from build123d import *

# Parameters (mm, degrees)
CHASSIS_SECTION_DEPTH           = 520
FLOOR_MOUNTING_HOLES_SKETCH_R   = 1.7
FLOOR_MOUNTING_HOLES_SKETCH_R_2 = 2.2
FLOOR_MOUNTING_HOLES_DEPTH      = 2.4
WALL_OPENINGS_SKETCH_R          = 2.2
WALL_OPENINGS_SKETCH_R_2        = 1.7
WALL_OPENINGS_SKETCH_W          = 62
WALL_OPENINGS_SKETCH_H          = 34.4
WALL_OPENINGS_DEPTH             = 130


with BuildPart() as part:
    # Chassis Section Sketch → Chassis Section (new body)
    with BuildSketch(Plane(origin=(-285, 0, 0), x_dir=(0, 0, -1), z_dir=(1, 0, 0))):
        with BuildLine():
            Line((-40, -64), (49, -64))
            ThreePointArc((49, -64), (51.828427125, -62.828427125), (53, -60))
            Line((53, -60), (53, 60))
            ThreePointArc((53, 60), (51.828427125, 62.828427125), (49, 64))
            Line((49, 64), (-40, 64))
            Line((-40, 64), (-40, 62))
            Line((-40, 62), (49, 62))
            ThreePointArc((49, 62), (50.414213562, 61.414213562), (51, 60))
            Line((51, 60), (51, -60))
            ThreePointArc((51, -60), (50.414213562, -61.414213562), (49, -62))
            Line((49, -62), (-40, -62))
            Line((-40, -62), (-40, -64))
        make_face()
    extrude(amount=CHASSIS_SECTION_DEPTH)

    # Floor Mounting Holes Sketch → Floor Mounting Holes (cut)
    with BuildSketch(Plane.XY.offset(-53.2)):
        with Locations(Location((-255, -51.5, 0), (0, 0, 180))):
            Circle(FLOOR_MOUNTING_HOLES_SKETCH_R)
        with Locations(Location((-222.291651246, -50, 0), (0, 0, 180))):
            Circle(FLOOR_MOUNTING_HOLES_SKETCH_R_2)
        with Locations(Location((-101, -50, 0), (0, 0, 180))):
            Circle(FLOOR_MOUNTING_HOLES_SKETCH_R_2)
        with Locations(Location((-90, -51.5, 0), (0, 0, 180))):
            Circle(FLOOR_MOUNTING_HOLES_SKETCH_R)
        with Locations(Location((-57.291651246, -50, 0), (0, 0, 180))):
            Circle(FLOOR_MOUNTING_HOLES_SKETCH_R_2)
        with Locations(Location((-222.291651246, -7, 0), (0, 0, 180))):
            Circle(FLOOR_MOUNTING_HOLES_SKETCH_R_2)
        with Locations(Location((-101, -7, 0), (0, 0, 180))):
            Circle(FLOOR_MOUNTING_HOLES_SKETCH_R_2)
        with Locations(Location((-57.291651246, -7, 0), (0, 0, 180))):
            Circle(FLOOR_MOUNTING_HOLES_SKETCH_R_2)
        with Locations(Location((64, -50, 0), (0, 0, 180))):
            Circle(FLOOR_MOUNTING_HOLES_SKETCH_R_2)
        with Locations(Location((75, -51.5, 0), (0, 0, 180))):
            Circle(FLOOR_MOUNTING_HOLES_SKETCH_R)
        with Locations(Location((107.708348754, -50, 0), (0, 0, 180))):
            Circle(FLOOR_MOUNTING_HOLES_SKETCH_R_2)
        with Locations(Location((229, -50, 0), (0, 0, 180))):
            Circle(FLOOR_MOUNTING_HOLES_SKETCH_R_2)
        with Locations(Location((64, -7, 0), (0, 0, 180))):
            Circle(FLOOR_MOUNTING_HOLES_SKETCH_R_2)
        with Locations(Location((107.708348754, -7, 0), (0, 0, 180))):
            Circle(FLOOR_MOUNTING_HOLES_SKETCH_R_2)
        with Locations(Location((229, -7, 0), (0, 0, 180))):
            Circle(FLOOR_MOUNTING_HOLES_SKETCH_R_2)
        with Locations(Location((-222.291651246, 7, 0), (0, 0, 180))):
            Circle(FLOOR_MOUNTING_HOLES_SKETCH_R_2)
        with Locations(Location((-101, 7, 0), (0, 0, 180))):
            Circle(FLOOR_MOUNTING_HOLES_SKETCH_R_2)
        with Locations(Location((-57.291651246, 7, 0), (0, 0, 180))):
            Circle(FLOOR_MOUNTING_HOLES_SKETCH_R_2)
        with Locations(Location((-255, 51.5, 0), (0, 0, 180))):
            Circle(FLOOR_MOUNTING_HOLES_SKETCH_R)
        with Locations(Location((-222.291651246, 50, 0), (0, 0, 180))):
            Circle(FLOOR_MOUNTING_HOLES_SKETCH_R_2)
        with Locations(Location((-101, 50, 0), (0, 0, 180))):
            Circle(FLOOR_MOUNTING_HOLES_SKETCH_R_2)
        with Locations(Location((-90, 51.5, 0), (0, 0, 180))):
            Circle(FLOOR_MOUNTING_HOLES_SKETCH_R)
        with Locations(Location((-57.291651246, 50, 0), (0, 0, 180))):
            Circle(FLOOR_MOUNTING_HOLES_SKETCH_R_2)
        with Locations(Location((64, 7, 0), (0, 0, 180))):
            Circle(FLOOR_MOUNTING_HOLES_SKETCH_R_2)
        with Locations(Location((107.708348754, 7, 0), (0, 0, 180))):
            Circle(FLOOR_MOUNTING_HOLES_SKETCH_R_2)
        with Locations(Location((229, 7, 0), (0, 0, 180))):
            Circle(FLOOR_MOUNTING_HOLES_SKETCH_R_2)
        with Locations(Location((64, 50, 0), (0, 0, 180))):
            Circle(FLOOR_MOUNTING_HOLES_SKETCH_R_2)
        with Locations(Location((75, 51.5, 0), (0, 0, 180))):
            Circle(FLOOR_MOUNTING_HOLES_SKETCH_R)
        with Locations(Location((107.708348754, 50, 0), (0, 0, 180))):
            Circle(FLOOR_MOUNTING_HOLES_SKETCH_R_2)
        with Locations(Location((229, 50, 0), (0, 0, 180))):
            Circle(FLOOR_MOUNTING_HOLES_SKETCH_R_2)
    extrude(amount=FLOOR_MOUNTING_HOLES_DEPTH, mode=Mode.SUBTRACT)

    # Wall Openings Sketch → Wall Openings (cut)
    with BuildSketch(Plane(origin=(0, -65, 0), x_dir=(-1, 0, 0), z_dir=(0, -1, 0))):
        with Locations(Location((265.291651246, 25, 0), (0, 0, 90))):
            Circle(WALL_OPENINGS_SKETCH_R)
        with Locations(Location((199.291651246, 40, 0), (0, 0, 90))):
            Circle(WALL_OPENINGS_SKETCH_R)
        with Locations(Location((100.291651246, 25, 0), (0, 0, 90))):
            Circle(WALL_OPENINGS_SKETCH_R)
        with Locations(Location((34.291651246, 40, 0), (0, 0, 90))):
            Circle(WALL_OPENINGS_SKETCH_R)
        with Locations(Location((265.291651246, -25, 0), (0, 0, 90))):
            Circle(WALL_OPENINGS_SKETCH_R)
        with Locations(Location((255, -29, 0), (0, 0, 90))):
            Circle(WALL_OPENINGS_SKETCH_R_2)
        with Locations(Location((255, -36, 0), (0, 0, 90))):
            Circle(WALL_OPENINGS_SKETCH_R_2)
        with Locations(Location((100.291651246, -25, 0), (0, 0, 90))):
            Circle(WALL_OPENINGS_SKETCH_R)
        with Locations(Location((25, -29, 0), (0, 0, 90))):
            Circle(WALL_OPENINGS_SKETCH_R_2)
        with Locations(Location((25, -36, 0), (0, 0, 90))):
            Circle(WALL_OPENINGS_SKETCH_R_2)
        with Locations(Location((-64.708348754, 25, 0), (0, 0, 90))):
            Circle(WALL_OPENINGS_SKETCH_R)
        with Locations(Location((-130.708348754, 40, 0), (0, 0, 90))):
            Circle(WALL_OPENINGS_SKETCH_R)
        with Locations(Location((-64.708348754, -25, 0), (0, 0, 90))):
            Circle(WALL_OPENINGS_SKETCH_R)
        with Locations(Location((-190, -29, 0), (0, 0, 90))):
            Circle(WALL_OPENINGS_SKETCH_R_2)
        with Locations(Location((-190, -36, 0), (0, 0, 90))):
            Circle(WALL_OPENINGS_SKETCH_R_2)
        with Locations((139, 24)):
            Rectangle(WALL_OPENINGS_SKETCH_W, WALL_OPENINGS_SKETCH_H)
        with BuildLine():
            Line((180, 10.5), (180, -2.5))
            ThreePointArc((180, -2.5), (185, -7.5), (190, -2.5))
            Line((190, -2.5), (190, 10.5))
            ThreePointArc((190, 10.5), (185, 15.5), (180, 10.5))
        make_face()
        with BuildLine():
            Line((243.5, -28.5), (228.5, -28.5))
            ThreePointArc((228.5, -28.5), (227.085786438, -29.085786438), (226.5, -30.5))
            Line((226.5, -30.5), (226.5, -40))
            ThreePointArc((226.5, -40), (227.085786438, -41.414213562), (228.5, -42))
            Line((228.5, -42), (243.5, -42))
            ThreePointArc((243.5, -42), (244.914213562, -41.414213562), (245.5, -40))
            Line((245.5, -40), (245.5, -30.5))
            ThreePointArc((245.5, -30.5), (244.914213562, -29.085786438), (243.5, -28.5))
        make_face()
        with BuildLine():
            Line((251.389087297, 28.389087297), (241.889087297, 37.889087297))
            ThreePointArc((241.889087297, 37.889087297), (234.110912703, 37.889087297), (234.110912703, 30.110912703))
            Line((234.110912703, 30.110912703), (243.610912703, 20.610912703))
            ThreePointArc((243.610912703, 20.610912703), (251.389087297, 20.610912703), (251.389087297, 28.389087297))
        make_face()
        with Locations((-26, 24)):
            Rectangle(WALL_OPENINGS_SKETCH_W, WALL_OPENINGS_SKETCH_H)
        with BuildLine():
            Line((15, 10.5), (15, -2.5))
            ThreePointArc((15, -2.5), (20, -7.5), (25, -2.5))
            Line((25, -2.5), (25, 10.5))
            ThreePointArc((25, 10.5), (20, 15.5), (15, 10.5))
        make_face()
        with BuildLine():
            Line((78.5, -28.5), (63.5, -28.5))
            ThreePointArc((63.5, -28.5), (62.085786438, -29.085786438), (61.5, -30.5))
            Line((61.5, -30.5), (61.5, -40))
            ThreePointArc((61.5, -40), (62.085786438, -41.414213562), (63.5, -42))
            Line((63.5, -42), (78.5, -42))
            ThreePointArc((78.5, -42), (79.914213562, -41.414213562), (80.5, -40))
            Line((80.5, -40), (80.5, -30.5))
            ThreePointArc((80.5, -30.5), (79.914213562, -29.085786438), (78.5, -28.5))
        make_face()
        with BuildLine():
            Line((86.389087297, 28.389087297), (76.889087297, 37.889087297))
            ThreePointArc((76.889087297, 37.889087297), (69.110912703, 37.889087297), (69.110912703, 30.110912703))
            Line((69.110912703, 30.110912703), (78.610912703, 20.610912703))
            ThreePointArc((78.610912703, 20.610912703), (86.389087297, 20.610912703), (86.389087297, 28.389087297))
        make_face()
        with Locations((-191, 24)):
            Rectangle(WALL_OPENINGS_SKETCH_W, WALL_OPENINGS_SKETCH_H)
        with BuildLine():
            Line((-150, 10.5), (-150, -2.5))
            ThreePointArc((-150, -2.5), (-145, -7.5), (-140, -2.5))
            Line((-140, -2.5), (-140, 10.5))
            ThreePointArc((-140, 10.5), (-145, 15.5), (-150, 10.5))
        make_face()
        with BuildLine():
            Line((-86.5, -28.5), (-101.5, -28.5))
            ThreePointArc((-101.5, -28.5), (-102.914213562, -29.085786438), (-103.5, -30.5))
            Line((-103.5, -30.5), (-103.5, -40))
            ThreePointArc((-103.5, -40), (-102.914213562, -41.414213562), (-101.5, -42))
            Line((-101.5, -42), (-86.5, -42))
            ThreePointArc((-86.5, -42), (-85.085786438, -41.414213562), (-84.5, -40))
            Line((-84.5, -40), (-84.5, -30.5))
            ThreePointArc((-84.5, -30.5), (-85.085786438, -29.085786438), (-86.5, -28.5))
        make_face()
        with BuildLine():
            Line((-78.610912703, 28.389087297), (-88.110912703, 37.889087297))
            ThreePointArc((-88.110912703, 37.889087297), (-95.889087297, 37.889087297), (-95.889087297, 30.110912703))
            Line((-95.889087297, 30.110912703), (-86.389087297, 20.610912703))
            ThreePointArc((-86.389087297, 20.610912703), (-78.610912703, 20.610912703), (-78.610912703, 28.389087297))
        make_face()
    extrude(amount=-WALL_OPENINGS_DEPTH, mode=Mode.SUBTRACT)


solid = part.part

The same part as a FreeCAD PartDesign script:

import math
import FreeCAD as App
import Part
import Sketcher
from FreeCAD import Vector
Q = App.Units.Quantity


def add_polygon(sketch, points):
    """Adds a closed chain of lines whose ends are joined by coincident constraints."""
    first, n = sketch.GeometryCount, len(points)
    for a, b in zip(points, points[1:] + points[:1]):
        sketch.addGeometry(Part.LineSegment(App.Vector(*a, 0), App.Vector(*b, 0)), False)
    for i in range(n):
        sketch.addConstraint(Sketcher.Constraint("Coincident", first + i, 2, first + (i + 1) % n, 1))

doc = App.newDocument("Part")
body = doc.addObject("PartDesign::Body", "Body")

# Sketch on YZ plane
sketch1 = body.newObject("Sketcher::SketchObject", "Sketch")
sketch1.AttachmentSupport = (doc.getObject("YZ_Plane"), [""])
sketch1.MapMode = "FlatFace"
sketch1.AttachmentOffset = App.Placement(Vector(0, 0, -285), App.Rotation())
sketch1.addGeometry(Part.LineSegment(Vector(-64, 40, 0), Vector(-64, -49, 0)), False)
sketch1.addGeometry(Part.ArcOfCircle(Part.Circle(Vector(-60, -49, 0), Vector(0, 0, 1), 4), math.radians(180), math.radians(270)), False)
sketch1.addGeometry(Part.LineSegment(Vector(-60, -53, 0), Vector(60, -53, 0)), False)
sketch1.addGeometry(Part.ArcOfCircle(Part.Circle(Vector(60, -49, 0), Vector(0, 0, 1), 4), math.radians(-90), math.radians(0)), False)
sketch1.addGeometry(Part.LineSegment(Vector(64, -49, 0), Vector(64, 40, 0)), False)
sketch1.addGeometry(Part.LineSegment(Vector(64, 40, 0), Vector(62, 40, 0)), False)
sketch1.addGeometry(Part.LineSegment(Vector(62, 40, 0), Vector(62, -49, 0)), False)
sketch1.addGeometry(Part.ArcOfCircle(Part.Circle(Vector(60, -49, 0), Vector(0, 0, 1), 2), math.radians(-90), math.radians(0)), False)
sketch1.addGeometry(Part.LineSegment(Vector(60, -51, 0), Vector(-60, -51, 0)), False)
sketch1.addGeometry(Part.ArcOfCircle(Part.Circle(Vector(-60, -49, 0), Vector(0, 0, 1), 2), math.radians(-180), math.radians(-90)), False)
sketch1.addGeometry(Part.LineSegment(Vector(-62, -49, 0), Vector(-62, 40, 0)), False)
sketch1.addGeometry(Part.LineSegment(Vector(-62, 40, 0), Vector(-64, 40, 0)), False)
sketch1.addConstraint(Sketcher.Constraint("Tangent", 0, 2, 1, 1))
sketch1.addConstraint(Sketcher.Constraint("Tangent", 1, 2, 2, 1))
sketch1.addConstraint(Sketcher.Constraint("Tangent", 2, 2, 3, 1))
sketch1.addConstraint(Sketcher.Constraint("Tangent", 3, 2, 4, 1))
sketch1.addConstraint(Sketcher.Constraint("Coincident", 4, 2, 5, 1))
sketch1.addConstraint(Sketcher.Constraint("Coincident", 5, 2, 6, 1))
sketch1.addConstraint(Sketcher.Constraint("Tangent", 6, 2, 7, 2))
sketch1.addConstraint(Sketcher.Constraint("Tangent", 7, 1, 8, 1))
sketch1.addConstraint(Sketcher.Constraint("Tangent", 8, 2, 9, 2))
sketch1.addConstraint(Sketcher.Constraint("Tangent", 9, 1, 10, 1))
sketch1.addConstraint(Sketcher.Constraint("Coincident", 10, 2, 11, 1))
sketch1.addConstraint(Sketcher.Constraint("Coincident", 11, 2, 0, 1))
sketch1.addConstraint(Sketcher.Constraint("Vertical", 0))
sketch1.addConstraint(Sketcher.Constraint("Horizontal", 2))
sketch1.addConstraint(Sketcher.Constraint("Vertical", 4))
sketch1.addConstraint(Sketcher.Constraint("Horizontal", 5))
sketch1.addConstraint(Sketcher.Constraint("Vertical", 6))
sketch1.addConstraint(Sketcher.Constraint("Horizontal", 8))
sketch1.addConstraint(Sketcher.Constraint("Vertical", 10))
sketch1.addConstraint(Sketcher.Constraint("Horizontal", 11))
sketch1.addConstraint(Sketcher.Constraint("Coincident", 7, 3, 3, 3))
sketch1.addConstraint(Sketcher.Constraint("Coincident", 9, 3, 1, 3))
sketch1.addConstraint(Sketcher.Constraint("Equal", 1, 3))
sketch1.addConstraint(Sketcher.Constraint("Symmetric", 5, 2, 10, 2, -2))
sketch1.addConstraint(Sketcher.Constraint("Radius", 1, Q("4 mm")))
sketch1.addConstraint(Sketcher.Constraint("Radius", 7, Q("2 mm")))
sketch1.addConstraint(Sketcher.Constraint("DistanceX", 2, 1, 2, 2, Q("120 mm")))
sketch1.addConstraint(Sketcher.Constraint("DistanceY", 0, 2, 0, 1, Q("89 mm")))
sketch1.addConstraint(Sketcher.Constraint("DistanceY", 1, 3, -1, 1, Q("49 mm")))
pad1 = body.newObject("PartDesign::Pad", "Pad")
pad1.Profile = sketch1
pad1.Length = 520

# Sketch on XY plane
sketch2 = body.newObject("Sketcher::SketchObject", "Sketch001")
sketch2.AttachmentSupport = (doc.getObject("XY_Plane"), [""])
sketch2.MapMode = "FlatFace"
sketch2.AttachmentOffset = App.Placement(Vector(0, 0, -53.2), App.Rotation())
sketch2.addGeometry(Part.Circle(Vector(-255, -51.5, 0), Vector(0, 0, 1), 1.7), False)
sketch2.addGeometry(Part.Circle(Vector(-222.291651, -50, 0), Vector(0, 0, 1), 2.2), False)
sketch2.addGeometry(Part.Circle(Vector(-101, -50, 0), Vector(0, 0, 1), 2.2), False)
sketch2.addGeometry(Part.Circle(Vector(-90, -51.5, 0), Vector(0, 0, 1), 1.7), False)
sketch2.addGeometry(Part.Circle(Vector(-57.291651, -50, 0), Vector(0, 0, 1), 2.2), False)
sketch2.addGeometry(Part.Circle(Vector(-222.291651, -7, 0), Vector(0, 0, 1), 2.2), False)
sketch2.addGeometry(Part.Circle(Vector(-101, -7, 0), Vector(0, 0, 1), 2.2), False)
sketch2.addGeometry(Part.Circle(Vector(-57.291651, -7, 0), Vector(0, 0, 1), 2.2), False)
sketch2.addGeometry(Part.Circle(Vector(64, -50, 0), Vector(0, 0, 1), 2.2), False)
sketch2.addGeometry(Part.Circle(Vector(75, -51.5, 0), Vector(0, 0, 1), 1.7), False)
sketch2.addGeometry(Part.Circle(Vector(107.708349, -50, 0), Vector(0, 0, 1), 2.2), False)
sketch2.addGeometry(Part.Circle(Vector(229, -50, 0), Vector(0, 0, 1), 2.2), False)
sketch2.addGeometry(Part.Circle(Vector(64, -7, 0), Vector(0, 0, 1), 2.2), False)
sketch2.addGeometry(Part.Circle(Vector(107.708349, -7, 0), Vector(0, 0, 1), 2.2), False)
sketch2.addGeometry(Part.Circle(Vector(229, -7, 0), Vector(0, 0, 1), 2.2), False)
sketch2.addGeometry(Part.Circle(Vector(-222.291651, 7, 0), Vector(0, 0, 1), 2.2), False)
sketch2.addGeometry(Part.Circle(Vector(-101, 7, 0), Vector(0, 0, 1), 2.2), False)
sketch2.addGeometry(Part.Circle(Vector(-57.291651, 7, 0), Vector(0, 0, 1), 2.2), False)
sketch2.addGeometry(Part.Circle(Vector(-255, 51.5, 0), Vector(0, 0, 1), 1.7), False)
sketch2.addGeometry(Part.Circle(Vector(-222.291651, 50, 0), Vector(0, 0, 1), 2.2), False)
sketch2.addGeometry(Part.Circle(Vector(-101, 50, 0), Vector(0, 0, 1), 2.2), False)
sketch2.addGeometry(Part.Circle(Vector(-90, 51.5, 0), Vector(0, 0, 1), 1.7), False)
sketch2.addGeometry(Part.Circle(Vector(-57.291651, 50, 0), Vector(0, 0, 1), 2.2), False)
sketch2.addGeometry(Part.Circle(Vector(64, 7, 0), Vector(0, 0, 1), 2.2), False)
sketch2.addGeometry(Part.Circle(Vector(107.708349, 7, 0), Vector(0, 0, 1), 2.2), False)
sketch2.addGeometry(Part.Circle(Vector(229, 7, 0), Vector(0, 0, 1), 2.2), False)
sketch2.addGeometry(Part.Circle(Vector(64, 50, 0), Vector(0, 0, 1), 2.2), False)
sketch2.addGeometry(Part.Circle(Vector(75, 51.5, 0), Vector(0, 0, 1), 1.7), False)
sketch2.addGeometry(Part.Circle(Vector(107.708349, 50, 0), Vector(0, 0, 1), 2.2), False)
sketch2.addGeometry(Part.Circle(Vector(229, 50, 0), Vector(0, 0, 1), 2.2), False)
sketch2.addConstraint(Sketcher.Constraint("Equal", 1, 2))
sketch2.addConstraint(Sketcher.Constraint("Equal", 0, 3))
sketch2.addConstraint(Sketcher.Constraint("Equal", 2, 4))
sketch2.addConstraint(Sketcher.Constraint("Equal", 4, 5))
sketch2.addConstraint(Sketcher.Constraint("Equal", 5, 6))
sketch2.addConstraint(Sketcher.Constraint("Equal", 6, 7))
sketch2.addConstraint(Sketcher.Constraint("Equal", 7, 8))
sketch2.addConstraint(Sketcher.Constraint("Equal", 3, 9))
sketch2.addConstraint(Sketcher.Constraint("Equal", 8, 10))
sketch2.addConstraint(Sketcher.Constraint("Equal", 10, 11))
sketch2.addConstraint(Sketcher.Constraint("Equal", 11, 12))
sketch2.addConstraint(Sketcher.Constraint("Equal", 12, 13))
sketch2.addConstraint(Sketcher.Constraint("Equal", 13, 14))
sketch2.addConstraint(Sketcher.Constraint("Equal", 14, 15))
sketch2.addConstraint(Sketcher.Constraint("Equal", 15, 16))
sketch2.addConstraint(Sketcher.Constraint("Equal", 16, 17))
sketch2.addConstraint(Sketcher.Constraint("Equal", 9, 18))
sketch2.addConstraint(Sketcher.Constraint("Equal", 17, 19))
sketch2.addConstraint(Sketcher.Constraint("Equal", 19, 20))
sketch2.addConstraint(Sketcher.Constraint("Equal", 18, 21))
sketch2.addConstraint(Sketcher.Constraint("Equal", 20, 22))
sketch2.addConstraint(Sketcher.Constraint("Equal", 22, 23))
sketch2.addConstraint(Sketcher.Constraint("Equal", 23, 24))
sketch2.addConstraint(Sketcher.Constraint("Equal", 24, 25))
sketch2.addConstraint(Sketcher.Constraint("Equal", 25, 26))
sketch2.addConstraint(Sketcher.Constraint("Equal", 21, 27))
sketch2.addConstraint(Sketcher.Constraint("Equal", 26, 28))
sketch2.addConstraint(Sketcher.Constraint("Equal", 28, 29))
sketch2.addConstraint(Sketcher.Constraint("Symmetric", 5, 3, 15, 3, -1))
sketch2.addConstraint(Sketcher.Constraint("Symmetric", 6, 3, 16, 3, -1))
sketch2.addConstraint(Sketcher.Constraint("Symmetric", 7, 3, 17, 3, -1))
sketch2.addConstraint(Sketcher.Constraint("Symmetric", 0, 3, 18, 3, -1))
sketch2.addConstraint(Sketcher.Constraint("Symmetric", 1, 3, 19, 3, -1))
sketch2.addConstraint(Sketcher.Constraint("Symmetric", 2, 3, 20, 3, -1))
sketch2.addConstraint(Sketcher.Constraint("Symmetric", 3, 3, 21, 3, -1))
sketch2.addConstraint(Sketcher.Constraint("Symmetric", 4, 3, 22, 3, -1))
sketch2.addConstraint(Sketcher.Constraint("Symmetric", 12, 3, 23, 3, -1))
sketch2.addConstraint(Sketcher.Constraint("Symmetric", 13, 3, 24, 3, -1))
sketch2.addConstraint(Sketcher.Constraint("Symmetric", 14, 3, 25, 3, -1))
sketch2.addConstraint(Sketcher.Constraint("Symmetric", 8, 3, 26, 3, -1))
sketch2.addConstraint(Sketcher.Constraint("Symmetric", 9, 3, 27, 3, -1))
sketch2.addConstraint(Sketcher.Constraint("Symmetric", 10, 3, 28, 3, -1))
sketch2.addConstraint(Sketcher.Constraint("Symmetric", 11, 3, 29, 3, -1))
sketch2.addConstraint(Sketcher.Constraint("Horizontal", 1, 3, 2, 3))
sketch2.addConstraint(Sketcher.Constraint("Horizontal", 0, 3, 3, 3))
sketch2.addConstraint(Sketcher.Constraint("Horizontal", 2, 3, 4, 3))
sketch2.addConstraint(Sketcher.Constraint("Horizontal", 5, 3, 6, 3))
sketch2.addConstraint(Sketcher.Constraint("Horizontal", 6, 3, 7, 3))
sketch2.addConstraint(Sketcher.Constraint("Horizontal", 4, 3, 8, 3))
sketch2.addConstraint(Sketcher.Constraint("Horizontal", 3, 3, 9, 3))
sketch2.addConstraint(Sketcher.Constraint("Horizontal", 8, 3, 10, 3))
sketch2.addConstraint(Sketcher.Constraint("Horizontal", 10, 3, 11, 3))
sketch2.addConstraint(Sketcher.Constraint("Horizontal", 7, 3, 12, 3))
sketch2.addConstraint(Sketcher.Constraint("Horizontal", 12, 3, 13, 3))
sketch2.addConstraint(Sketcher.Constraint("Horizontal", 13, 3, 14, 3))
sketch2.addConstraint(Sketcher.Constraint("Vertical", 1, 3, 5, 3))
sketch2.addConstraint(Sketcher.Constraint("Vertical", 2, 3, 6, 3))
sketch2.addConstraint(Sketcher.Constraint("Vertical", 4, 3, 7, 3))
sketch2.addConstraint(Sketcher.Constraint("Vertical", 8, 3, 12, 3))
sketch2.addConstraint(Sketcher.Constraint("Vertical", 10, 3, 13, 3))
sketch2.addConstraint(Sketcher.Constraint("Vertical", 11, 3, 14, 3))
sketch2.addConstraint(Sketcher.Constraint("Diameter", 0, Q("3.4 mm")))
sketch2.addConstraint(Sketcher.Constraint("Diameter", 1, Q("4.4 mm")))
sketch2.addConstraint(Sketcher.Constraint("DistanceX", 0, 3, -1, 1, Q("255 mm")))
sketch2.addConstraint(Sketcher.Constraint("DistanceY", 1, 3, -1, 1, Q("50 mm")))
sketch2.addConstraint(Sketcher.Constraint("DistanceX", 2, 3, -1, 1, Q("101 mm")))
sketch2.addConstraint(Sketcher.Constraint("DistanceX", 3, 3, -1, 1, Q("90 mm")))
sketch2.addConstraint(Sketcher.Constraint("DistanceY", 5, 3, -1, 1, Q("7 mm")))
sketch2.addConstraint(Sketcher.Constraint("DistanceX", -1, 1, 8, 3, Q("64 mm")))
sketch2.addConstraint(Sketcher.Constraint("DistanceX", -1, 1, 9, 3, Q("75 mm")))
sketch2.addConstraint(Sketcher.Constraint("DistanceX", -1, 1, 11, 3, Q("229 mm")))
sketch2.addConstraint(Sketcher.Constraint("DistanceX", 1, 3, 4, 3, Q("165 mm")))
sketch2.addConstraint(Sketcher.Constraint("DistanceX", 4, 3, 10, 3, Q("165 mm")))
sketch2.addConstraint(Sketcher.Constraint("DistanceY", 0, 3, 18, 3, Q("103 mm")))
sketch2.addConstraint(Sketcher.Constraint("DistanceX", 1, 3, -1, 1, Q("222.291651 mm")))
pocket1 = body.newObject("PartDesign::Pocket", "Pocket")
pocket1.Profile = sketch2
pocket1.Length = 2.4
pocket1.Reversed = True

# Sketch on XZ plane
sketch3 = body.newObject("Sketcher::SketchObject", "Sketch002")
sketch3.AttachmentSupport = (doc.getObject("XZ_Plane"), [""])
sketch3.MapMode = "FlatFace"
sketch3.AttachmentOffset = App.Placement(Vector(0, 0, 65), App.Rotation())
sketch3.addGeometry(Part.Circle(Vector(-265.291651, -25, 0), Vector(0, 0, 1), 2.2), False)  # 0
sketch3.addGeometry(Part.Circle(Vector(-199.291651, -40, 0), Vector(0, 0, 1), 2.2), False)  # 1
sketch3.addGeometry(Part.Circle(Vector(-100.291651, -25, 0), Vector(0, 0, 1), 2.2), False)  # 2
sketch3.addGeometry(Part.Circle(Vector(-34.291651, -40, 0), Vector(0, 0, 1), 2.2), False)  # 3
sketch3.addGeometry(Part.Circle(Vector(-265.291651, 25, 0), Vector(0, 0, 1), 2.2), False)  # 4
sketch3.addGeometry(Part.Circle(Vector(-255, 29, 0), Vector(0, 0, 1), 1.7), False)  # 5
sketch3.addGeometry(Part.Circle(Vector(-255, 36, 0), Vector(0, 0, 1), 1.7), False)  # 6
sketch3.addGeometry(Part.Circle(Vector(-100.291651, 25, 0), Vector(0, 0, 1), 2.2), False)  # 7
sketch3.addGeometry(Part.Circle(Vector(-25, 29, 0), Vector(0, 0, 1), 1.7), False)  # 8
sketch3.addGeometry(Part.Circle(Vector(-25, 36, 0), Vector(0, 0, 1), 1.7), False)  # 9
sketch3.addGeometry(Part.Circle(Vector(64.708349, -25, 0), Vector(0, 0, 1), 2.2), False)  # 10
sketch3.addGeometry(Part.Circle(Vector(130.708349, -40, 0), Vector(0, 0, 1), 2.2), False)  # 11
sketch3.addGeometry(Part.Circle(Vector(64.708349, 25, 0), Vector(0, 0, 1), 2.2), False)  # 12
sketch3.addGeometry(Part.Circle(Vector(190, 29, 0), Vector(0, 0, 1), 1.7), False)  # 13
sketch3.addGeometry(Part.Circle(Vector(190, 36, 0), Vector(0, 0, 1), 1.7), False)  # 14
add_polygon(sketch3, [(-108, -41.2), (-108, -6.8), (-170, -6.8), (-170, -41.2)])  # lines 15-18
sketch3.addGeometry(Part.LineSegment(Vector(-180, -10.5, 0), Vector(-180, 2.5, 0)), False)  # 19
sketch3.addGeometry(Part.ArcOfCircle(Part.Circle(Vector(-185, 2.5, 0), Vector(0, 0, 1), 5), math.radians(0), math.radians(180)), False)  # 20
sketch3.addGeometry(Part.LineSegment(Vector(-190, 2.5, 0), Vector(-190, -10.5, 0)), False)  # 21
sketch3.addGeometry(Part.ArcOfCircle(Part.Circle(Vector(-185, -10.5, 0), Vector(0, 0, 1), 5), math.radians(180), math.radians(360)), False)  # 22
sketch3.addGeometry(Part.LineSegment(Vector(-243.5, 28.5, 0), Vector(-228.5, 28.5, 0)), False)  # 23
sketch3.addGeometry(Part.ArcOfCircle(Part.Circle(Vector(-228.5, 30.5, 0), Vector(0, 0, 1), 2), math.radians(-90), math.radians(0)), False)  # 24
sketch3.addGeometry(Part.LineSegment(Vector(-226.5, 30.5, 0), Vector(-226.5, 40, 0)), False)  # 25
sketch3.addGeometry(Part.ArcOfCircle(Part.Circle(Vector(-228.5, 40, 0), Vector(0, 0, 1), 2), math.radians(0), math.radians(90)), False)  # 26
sketch3.addGeometry(Part.LineSegment(Vector(-228.5, 42, 0), Vector(-243.5, 42, 0)), False)  # 27
sketch3.addGeometry(Part.ArcOfCircle(Part.Circle(Vector(-243.5, 40, 0), Vector(0, 0, 1), 2), math.radians(90), math.radians(180)), False)  # 28
sketch3.addGeometry(Part.LineSegment(Vector(-245.5, 40, 0), Vector(-245.5, 30.5, 0)), False)  # 29
sketch3.addGeometry(Part.ArcOfCircle(Part.Circle(Vector(-243.5, 30.5, 0), Vector(0, 0, 1), 2), math.radians(-180), math.radians(-90)), False)  # 30
sketch3.addGeometry(Part.LineSegment(Vector(-251.389087, -28.389087, 0), Vector(-241.889087, -37.889087, 0)), False)  # 31
sketch3.addGeometry(Part.ArcOfCircle(Part.Circle(Vector(-238, -34, 0), Vector(0, 0, 1), 5.5), math.radians(-135), math.radians(45)), False)  # 32
sketch3.addGeometry(Part.LineSegment(Vector(-234.110913, -30.110913, 0), Vector(-243.610913, -20.610913, 0)), False)  # 33
sketch3.addGeometry(Part.ArcOfCircle(Part.Circle(Vector(-247.5, -24.5, 0), Vector(0, 0, 1), 5.5), math.radians(45), math.radians(225)), False)  # 34
add_polygon(sketch3, [(57, -41.2), (57, -6.8), (-5, -6.8), (-5, -41.2)])  # lines 35-38
sketch3.addGeometry(Part.LineSegment(Vector(-15, -10.5, 0), Vector(-15, 2.5, 0)), False)  # 39
sketch3.addGeometry(Part.ArcOfCircle(Part.Circle(Vector(-20, 2.5, 0), Vector(0, 0, 1), 5), math.radians(0), math.radians(180)), False)  # 40
sketch3.addGeometry(Part.LineSegment(Vector(-25, 2.5, 0), Vector(-25, -10.5, 0)), False)  # 41
sketch3.addGeometry(Part.ArcOfCircle(Part.Circle(Vector(-20, -10.5, 0), Vector(0, 0, 1), 5), math.radians(180), math.radians(360)), False)  # 42
sketch3.addGeometry(Part.LineSegment(Vector(-78.5, 28.5, 0), Vector(-63.5, 28.5, 0)), False)  # 43
sketch3.addGeometry(Part.ArcOfCircle(Part.Circle(Vector(-63.5, 30.5, 0), Vector(0, 0, 1), 2), math.radians(-90), math.radians(0)), False)  # 44
sketch3.addGeometry(Part.LineSegment(Vector(-61.5, 30.5, 0), Vector(-61.5, 40, 0)), False)  # 45
sketch3.addGeometry(Part.ArcOfCircle(Part.Circle(Vector(-63.5, 40, 0), Vector(0, 0, 1), 2), math.radians(0), math.radians(90)), False)  # 46
sketch3.addGeometry(Part.LineSegment(Vector(-63.5, 42, 0), Vector(-78.5, 42, 0)), False)  # 47
sketch3.addGeometry(Part.ArcOfCircle(Part.Circle(Vector(-78.5, 40, 0), Vector(0, 0, 1), 2), math.radians(90), math.radians(180)), False)  # 48
sketch3.addGeometry(Part.LineSegment(Vector(-80.5, 40, 0), Vector(-80.5, 30.5, 0)), False)  # 49
sketch3.addGeometry(Part.ArcOfCircle(Part.Circle(Vector(-78.5, 30.5, 0), Vector(0, 0, 1), 2), math.radians(-180), math.radians(-90)), False)  # 50
sketch3.addGeometry(Part.LineSegment(Vector(-86.389087, -28.389087, 0), Vector(-76.889087, -37.889087, 0)), False)  # 51
sketch3.addGeometry(Part.ArcOfCircle(Part.Circle(Vector(-73, -34, 0), Vector(0, 0, 1), 5.5), math.radians(-135), math.radians(45)), False)  # 52
sketch3.addGeometry(Part.LineSegment(Vector(-69.110913, -30.110913, 0), Vector(-78.610913, -20.610913, 0)), False)  # 53
sketch3.addGeometry(Part.ArcOfCircle(Part.Circle(Vector(-82.5, -24.5, 0), Vector(0, 0, 1), 5.5), math.radians(45), math.radians(225)), False)  # 54
add_polygon(sketch3, [(222, -41.2), (222, -6.8), (160, -6.8), (160, -41.2)])  # lines 55-58
sketch3.addGeometry(Part.LineSegment(Vector(150, -10.5, 0), Vector(150, 2.5, 0)), False)  # 59
sketch3.addGeometry(Part.ArcOfCircle(Part.Circle(Vector(145, 2.5, 0), Vector(0, 0, 1), 5), math.radians(0), math.radians(180)), False)  # 60
sketch3.addGeometry(Part.LineSegment(Vector(140, 2.5, 0), Vector(140, -10.5, 0)), False)  # 61
sketch3.addGeometry(Part.ArcOfCircle(Part.Circle(Vector(145, -10.5, 0), Vector(0, 0, 1), 5), math.radians(180), math.radians(360)), False)  # 62
sketch3.addGeometry(Part.LineSegment(Vector(86.5, 28.5, 0), Vector(101.5, 28.5, 0)), False)  # 63
sketch3.addGeometry(Part.ArcOfCircle(Part.Circle(Vector(101.5, 30.5, 0), Vector(0, 0, 1), 2), math.radians(-90), math.radians(0)), False)  # 64
sketch3.addGeometry(Part.LineSegment(Vector(103.5, 30.5, 0), Vector(103.5, 40, 0)), False)  # 65
sketch3.addGeometry(Part.ArcOfCircle(Part.Circle(Vector(101.5, 40, 0), Vector(0, 0, 1), 2), math.radians(0), math.radians(90)), False)  # 66
sketch3.addGeometry(Part.LineSegment(Vector(101.5, 42, 0), Vector(86.5, 42, 0)), False)  # 67
sketch3.addGeometry(Part.ArcOfCircle(Part.Circle(Vector(86.5, 40, 0), Vector(0, 0, 1), 2), math.radians(90), math.radians(180)), False)  # 68
sketch3.addGeometry(Part.LineSegment(Vector(84.5, 40, 0), Vector(84.5, 30.5, 0)), False)  # 69
sketch3.addGeometry(Part.ArcOfCircle(Part.Circle(Vector(86.5, 30.5, 0), Vector(0, 0, 1), 2), math.radians(-180), math.radians(-90)), False)  # 70
sketch3.addGeometry(Part.LineSegment(Vector(78.610913, -28.389087, 0), Vector(88.110913, -37.889087, 0)), False)  # 71
sketch3.addGeometry(Part.ArcOfCircle(Part.Circle(Vector(92, -34, 0), Vector(0, 0, 1), 5.5), math.radians(-135), math.radians(45)), False)  # 72
sketch3.addGeometry(Part.LineSegment(Vector(95.889087, -30.110913, 0), Vector(86.389087, -20.610913, 0)), False)  # 73
sketch3.addGeometry(Part.ArcOfCircle(Part.Circle(Vector(82.5, -24.5, 0), Vector(0, 0, 1), 5.5), math.radians(45), math.radians(225)), False)  # 74
sketch3.addConstraint(Sketcher.Constraint("Tangent", 19, 2, 20, 1))
sketch3.addConstraint(Sketcher.Constraint("Tangent", 20, 2, 21, 1))
sketch3.addConstraint(Sketcher.Constraint("Tangent", 21, 2, 22, 1))
sketch3.addConstraint(Sketcher.Constraint("Tangent", 22, 2, 19, 1))
sketch3.addConstraint(Sketcher.Constraint("Tangent", 23, 2, 24, 1))
sketch3.addConstraint(Sketcher.Constraint("Tangent", 24, 2, 25, 1))
sketch3.addConstraint(Sketcher.Constraint("Tangent", 25, 2, 26, 1))
sketch3.addConstraint(Sketcher.Constraint("Tangent", 26, 2, 27, 1))
sketch3.addConstraint(Sketcher.Constraint("Tangent", 27, 2, 28, 1))
sketch3.addConstraint(Sketcher.Constraint("Tangent", 28, 2, 29, 1))
sketch3.addConstraint(Sketcher.Constraint("Tangent", 29, 2, 30, 1))
sketch3.addConstraint(Sketcher.Constraint("Tangent", 30, 2, 23, 1))
sketch3.addConstraint(Sketcher.Constraint("Tangent", 31, 2, 32, 1))
sketch3.addConstraint(Sketcher.Constraint("Tangent", 32, 2, 33, 1))
sketch3.addConstraint(Sketcher.Constraint("Tangent", 33, 2, 34, 1))
sketch3.addConstraint(Sketcher.Constraint("Tangent", 34, 2, 31, 1))
sketch3.addConstraint(Sketcher.Constraint("Tangent", 39, 2, 40, 1))
sketch3.addConstraint(Sketcher.Constraint("Tangent", 40, 2, 41, 1))
sketch3.addConstraint(Sketcher.Constraint("Tangent", 41, 2, 42, 1))
sketch3.addConstraint(Sketcher.Constraint("Tangent", 42, 2, 39, 1))
sketch3.addConstraint(Sketcher.Constraint("Tangent", 43, 2, 44, 1))
sketch3.addConstraint(Sketcher.Constraint("Tangent", 44, 2, 45, 1))
sketch3.addConstraint(Sketcher.Constraint("Tangent", 45, 2, 46, 1))
sketch3.addConstraint(Sketcher.Constraint("Tangent", 46, 2, 47, 1))
sketch3.addConstraint(Sketcher.Constraint("Tangent", 47, 2, 48, 1))
sketch3.addConstraint(Sketcher.Constraint("Tangent", 48, 2, 49, 1))
sketch3.addConstraint(Sketcher.Constraint("Tangent", 49, 2, 50, 1))
sketch3.addConstraint(Sketcher.Constraint("Tangent", 50, 2, 43, 1))
sketch3.addConstraint(Sketcher.Constraint("Tangent", 51, 2, 52, 1))
sketch3.addConstraint(Sketcher.Constraint("Tangent", 52, 2, 53, 1))
sketch3.addConstraint(Sketcher.Constraint("Tangent", 53, 2, 54, 1))
sketch3.addConstraint(Sketcher.Constraint("Tangent", 54, 2, 51, 1))
sketch3.addConstraint(Sketcher.Constraint("Tangent", 59, 2, 60, 1))
sketch3.addConstraint(Sketcher.Constraint("Tangent", 60, 2, 61, 1))
sketch3.addConstraint(Sketcher.Constraint("Tangent", 61, 2, 62, 1))
sketch3.addConstraint(Sketcher.Constraint("Tangent", 62, 2, 59, 1))
sketch3.addConstraint(Sketcher.Constraint("Tangent", 63, 2, 64, 1))
sketch3.addConstraint(Sketcher.Constraint("Tangent", 64, 2, 65, 1))
sketch3.addConstraint(Sketcher.Constraint("Tangent", 65, 2, 66, 1))
sketch3.addConstraint(Sketcher.Constraint("Tangent", 66, 2, 67, 1))
sketch3.addConstraint(Sketcher.Constraint("Tangent", 67, 2, 68, 1))
sketch3.addConstraint(Sketcher.Constraint("Tangent", 68, 2, 69, 1))
sketch3.addConstraint(Sketcher.Constraint("Tangent", 69, 2, 70, 1))
sketch3.addConstraint(Sketcher.Constraint("Tangent", 70, 2, 63, 1))
sketch3.addConstraint(Sketcher.Constraint("Tangent", 71, 2, 72, 1))
sketch3.addConstraint(Sketcher.Constraint("Tangent", 72, 2, 73, 1))
sketch3.addConstraint(Sketcher.Constraint("Tangent", 73, 2, 74, 1))
sketch3.addConstraint(Sketcher.Constraint("Tangent", 74, 2, 71, 1))
sketch3.addConstraint(Sketcher.Constraint("Vertical", 15))
sketch3.addConstraint(Sketcher.Constraint("Horizontal", 16))
sketch3.addConstraint(Sketcher.Constraint("Vertical", 17))
sketch3.addConstraint(Sketcher.Constraint("Horizontal", 18))
sketch3.addConstraint(Sketcher.Constraint("Vertical", 19))
sketch3.addConstraint(Sketcher.Constraint("Vertical", 21))
sketch3.addConstraint(Sketcher.Constraint("Horizontal", 23))
sketch3.addConstraint(Sketcher.Constraint("Vertical", 25))
sketch3.addConstraint(Sketcher.Constraint("Horizontal", 27))
sketch3.addConstraint(Sketcher.Constraint("Vertical", 29))
sketch3.addConstraint(Sketcher.Constraint("Vertical", 35))
sketch3.addConstraint(Sketcher.Constraint("Horizontal", 36))
sketch3.addConstraint(Sketcher.Constraint("Vertical", 37))
sketch3.addConstraint(Sketcher.Constraint("Horizontal", 38))
sketch3.addConstraint(Sketcher.Constraint("Vertical", 39))
sketch3.addConstraint(Sketcher.Constraint("Vertical", 41))
sketch3.addConstraint(Sketcher.Constraint("Horizontal", 43))
sketch3.addConstraint(Sketcher.Constraint("Vertical", 45))
sketch3.addConstraint(Sketcher.Constraint("Horizontal", 47))
sketch3.addConstraint(Sketcher.Constraint("Vertical", 49))
sketch3.addConstraint(Sketcher.Constraint("Vertical", 55))
sketch3.addConstraint(Sketcher.Constraint("Horizontal", 56))
sketch3.addConstraint(Sketcher.Constraint("Vertical", 57))
sketch3.addConstraint(Sketcher.Constraint("Horizontal", 58))
sketch3.addConstraint(Sketcher.Constraint("Vertical", 59))
sketch3.addConstraint(Sketcher.Constraint("Vertical", 61))
sketch3.addConstraint(Sketcher.Constraint("Horizontal", 63))
sketch3.addConstraint(Sketcher.Constraint("Vertical", 65))
sketch3.addConstraint(Sketcher.Constraint("Horizontal", 67))
sketch3.addConstraint(Sketcher.Constraint("Vertical", 69))
sketch3.addConstraint(Sketcher.Constraint("Equal", 0, 1))
sketch3.addConstraint(Sketcher.Constraint("Equal", 1, 2))
sketch3.addConstraint(Sketcher.Constraint("Equal", 2, 3))
sketch3.addConstraint(Sketcher.Constraint("Equal", 3, 4))
sketch3.addConstraint(Sketcher.Constraint("Equal", 5, 6))
sketch3.addConstraint(Sketcher.Constraint("Equal", 4, 7))
sketch3.addConstraint(Sketcher.Constraint("Equal", 6, 8))
sketch3.addConstraint(Sketcher.Constraint("Equal", 8, 9))
sketch3.addConstraint(Sketcher.Constraint("Equal", 7, 10))
sketch3.addConstraint(Sketcher.Constraint("Equal", 10, 11))
sketch3.addConstraint(Sketcher.Constraint("Equal", 11, 12))
sketch3.addConstraint(Sketcher.Constraint("Equal", 9, 13))
sketch3.addConstraint(Sketcher.Constraint("Equal", 13, 14))
sketch3.addConstraint(Sketcher.Constraint("Equal", 24, 26))
sketch3.addConstraint(Sketcher.Constraint("Equal", 26, 28))
sketch3.addConstraint(Sketcher.Constraint("Equal", 28, 30))
sketch3.addConstraint(Sketcher.Constraint("Equal", 32, 34))
sketch3.addConstraint(Sketcher.Constraint("Equal", 22, 40))
sketch3.addConstraint(Sketcher.Constraint("Equal", 30, 44))
sketch3.addConstraint(Sketcher.Constraint("Equal", 44, 46))
sketch3.addConstraint(Sketcher.Constraint("Equal", 46, 48))
sketch3.addConstraint(Sketcher.Constraint("Equal", 48, 50))
sketch3.addConstraint(Sketcher.Constraint("Equal", 34, 52))
sketch3.addConstraint(Sketcher.Constraint("Equal", 52, 54))
sketch3.addConstraint(Sketcher.Constraint("Equal", 42, 60))
sketch3.addConstraint(Sketcher.Constraint("Equal", 50, 64))
sketch3.addConstraint(Sketcher.Constraint("Equal", 64, 66))
sketch3.addConstraint(Sketcher.Constraint("Equal", 66, 68))
sketch3.addConstraint(Sketcher.Constraint("Equal", 68, 70))
sketch3.addConstraint(Sketcher.Constraint("Equal", 54, 72))
sketch3.addConstraint(Sketcher.Constraint("Equal", 72, 74))
sketch3.addConstraint(Sketcher.Constraint("Symmetric", 54, 3, 74, 3, -2))
sketch3.addConstraint(Sketcher.Constraint("Symmetric", 0, 3, 4, 3, -1))
sketch3.addConstraint(Sketcher.Constraint("Symmetric", 2, 3, 7, 3, -1))
sketch3.addConstraint(Sketcher.Constraint("Symmetric", 10, 3, 12, 3, -1))
sketch3.addConstraint(Sketcher.Constraint("Parallel", 33, 51))
sketch3.addConstraint(Sketcher.Constraint("Parallel", 53, 71))
sketch3.addConstraint(Sketcher.Constraint("Horizontal", 0, 3, 2, 3))
sketch3.addConstraint(Sketcher.Constraint("Horizontal", 1, 3, 3, 3))
sketch3.addConstraint(Sketcher.Constraint("Horizontal", 5, 3, 8, 3))
sketch3.addConstraint(Sketcher.Constraint("Horizontal", 6, 3, 9, 3))
sketch3.addConstraint(Sketcher.Constraint("Horizontal", 2, 3, 10, 3))
sketch3.addConstraint(Sketcher.Constraint("Horizontal", 3, 3, 11, 3))
sketch3.addConstraint(Sketcher.Constraint("Horizontal", 8, 3, 13, 3))
sketch3.addConstraint(Sketcher.Constraint("Horizontal", 9, 3, 14, 3))
sketch3.addConstraint(Sketcher.Constraint("Horizontal", 20, 3, 40, 3))
sketch3.addConstraint(Sketcher.Constraint("Horizontal", 22, 3, 42, 3))
sketch3.addConstraint(Sketcher.Constraint("Horizontal", 30, 3, 44, 3))
sketch3.addConstraint(Sketcher.Constraint("Horizontal", 28, 3, 46, 3))
sketch3.addConstraint(Sketcher.Constraint("Horizontal", 32, 3, 52, 3))
sketch3.addConstraint(Sketcher.Constraint("Horizontal", 34, 3, 54, 3))
sketch3.addConstraint(Sketcher.Constraint("Horizontal", 40, 3, 60, 3))
sketch3.addConstraint(Sketcher.Constraint("Horizontal", 42, 3, 62, 3))
sketch3.addConstraint(Sketcher.Constraint("Horizontal", 50, 3, 64, 3))
sketch3.addConstraint(Sketcher.Constraint("Horizontal", 48, 3, 66, 3))
sketch3.addConstraint(Sketcher.Constraint("Horizontal", 52, 3, 72, 3))
sketch3.addConstraint(Sketcher.Constraint("Horizontal", 16, 2, 35, 2))
sketch3.addConstraint(Sketcher.Constraint("Horizontal", 18, 2, 37, 2))
sketch3.addConstraint(Sketcher.Constraint("Horizontal", 36, 2, 55, 2))
sketch3.addConstraint(Sketcher.Constraint("Horizontal", 38, 2, 57, 2))
sketch3.addConstraint(Sketcher.Constraint("Vertical", 5, 3, 6, 3))
sketch3.addConstraint(Sketcher.Constraint("Vertical", 8, 3, 9, 3))
sketch3.addConstraint(Sketcher.Constraint("Vertical", 13, 3, 14, 3))
sketch3.addConstraint(Sketcher.Constraint("Vertical", 9, 3, 40, 2))
sketch3.addConstraint(Sketcher.Constraint("Equal", 18, 36))
sketch3.addConstraint(Sketcher.Constraint("Equal", 27, 43))
sketch3.addConstraint(Sketcher.Constraint("Equal", 38, 56))
sketch3.addConstraint(Sketcher.Constraint("Equal", 47, 63))
sketch3.addConstraint(Sketcher.Constraint("Radius", 20, Q("5 mm")))
sketch3.addConstraint(Sketcher.Constraint("Radius", 24, Q("2 mm")))
sketch3.addConstraint(Sketcher.Constraint("Diameter", 0, Q("4.4 mm")))
sketch3.addConstraint(Sketcher.Constraint("Diameter", 5, Q("3.4 mm")))
sketch3.addConstraint(Sketcher.Constraint("Radius", 32, Q("5.5 mm")))
sketch3.addConstraint(Sketcher.Constraint("DistanceX", 16, 2, 16, 1, Q("62 mm")))
sketch3.addConstraint(Sketcher.Constraint("DistanceX", 23, 1, 23, 2, Q("15 mm")))
sketch3.addConstraint(Sketcher.Constraint("DistanceY", 19, 1, 19, 2, Q("13 mm")))
sketch3.addConstraint(Sketcher.Constraint("Angle", 31, Q("-45 deg")))
sketch3.addConstraint(Sketcher.Constraint("DistanceY", 15, 1, 15, 2, Q("34.4 mm")))
sketch3.addConstraint(Sketcher.Constraint("DistanceY", 25, 1, 25, 2, Q("9.5 mm")))
sketch3.addConstraint(Sketcher.Constraint("DistanceY", 0, 3, -1, 1, Q("25 mm")))
sketch3.addConstraint(Sketcher.Constraint("DistanceY", 1, 3, -1, 1, Q("40 mm")))
sketch3.addConstraint(Sketcher.Constraint("DistanceX", 5, 3, -1, 1, Q("255 mm")))
sketch3.addConstraint(Sketcher.Constraint("DistanceY", -1, 1, 5, 3, Q("29 mm")))
sketch3.addConstraint(Sketcher.Constraint("DistanceY", -1, 1, 6, 3, Q("36 mm")))
sketch3.addConstraint(Sketcher.Constraint("DistanceX", 8, 3, -1, 1, Q("25 mm")))
sketch3.addConstraint(Sketcher.Constraint("DistanceX", -1, 1, 13, 3, Q("190 mm")))
sketch3.addConstraint(Sketcher.Constraint("DistanceX", 20, 3, -1, 1, Q("185 mm")))
sketch3.addConstraint(Sketcher.Constraint("DistanceY", -1, 1, 26, 3, Q("40 mm")))
sketch3.addConstraint(Sketcher.Constraint("DistanceX", 32, 3, -1, 1, Q("238 mm")))
sketch3.addConstraint(Sketcher.Constraint("DistanceY", 32, 3, -1, 1, Q("34 mm")))
sketch3.addConstraint(Sketcher.Constraint("DistanceX", 52, 3, -1, 1, Q("73 mm")))
sketch3.addConstraint(Sketcher.Constraint("DistanceX", -1, 1, 60, 3, Q("145 mm")))
sketch3.addConstraint(Sketcher.Constraint("DistanceX", -1, 1, 72, 3, Q("92 mm")))
sketch3.addConstraint(Sketcher.Constraint("DistanceX", 15, 2, -1, 1, Q("108 mm")))
sketch3.addConstraint(Sketcher.Constraint("DistanceX", -1, 1, 35, 2, Q("57 mm")))
sketch3.addConstraint(Sketcher.Constraint("DistanceX", -1, 1, 55, 2, Q("222 mm")))
sketch3.addConstraint(Sketcher.Constraint("DistanceY", -1, 1, 20, 3, Q("2.5 mm")))
sketch3.addConstraint(Sketcher.Constraint("DistanceX", 24, 3, -1, 1, Q("228.5 mm")))
sketch3.addConstraint(Sketcher.Constraint("DistanceX", 44, 3, -1, 1, Q("63.5 mm")))
sketch3.addConstraint(Sketcher.Constraint("DistanceX", -1, 1, 64, 3, Q("101.5 mm")))
sketch3.addConstraint(Sketcher.Constraint("DistanceY", 15, 2, -1, 1, Q("6.8 mm")))
sketch3.addConstraint(Sketcher.Constraint("DistanceX", 0, 3, -1, 1, Q("265.291651 mm")))
sketch3.addConstraint(Sketcher.Constraint("DistanceX", 1, 3, -1, 1, Q("199.291651 mm")))
sketch3.addConstraint(Sketcher.Constraint("DistanceX", 2, 3, -1, 1, Q("100.291651 mm")))
sketch3.addConstraint(Sketcher.Constraint("DistanceX", 3, 3, -1, 1, Q("34.291651 mm")))
sketch3.addConstraint(Sketcher.Constraint("DistanceX", -1, 1, 10, 3, Q("64.708349 mm")))
sketch3.addConstraint(Sketcher.Constraint("DistanceX", -1, 1, 11, 3, Q("130.708349 mm")))
pocket2 = body.newObject("PartDesign::Pocket", "Pocket001")
pocket2.Profile = sketch3
pocket2.Length = 130

doc.recompute()
